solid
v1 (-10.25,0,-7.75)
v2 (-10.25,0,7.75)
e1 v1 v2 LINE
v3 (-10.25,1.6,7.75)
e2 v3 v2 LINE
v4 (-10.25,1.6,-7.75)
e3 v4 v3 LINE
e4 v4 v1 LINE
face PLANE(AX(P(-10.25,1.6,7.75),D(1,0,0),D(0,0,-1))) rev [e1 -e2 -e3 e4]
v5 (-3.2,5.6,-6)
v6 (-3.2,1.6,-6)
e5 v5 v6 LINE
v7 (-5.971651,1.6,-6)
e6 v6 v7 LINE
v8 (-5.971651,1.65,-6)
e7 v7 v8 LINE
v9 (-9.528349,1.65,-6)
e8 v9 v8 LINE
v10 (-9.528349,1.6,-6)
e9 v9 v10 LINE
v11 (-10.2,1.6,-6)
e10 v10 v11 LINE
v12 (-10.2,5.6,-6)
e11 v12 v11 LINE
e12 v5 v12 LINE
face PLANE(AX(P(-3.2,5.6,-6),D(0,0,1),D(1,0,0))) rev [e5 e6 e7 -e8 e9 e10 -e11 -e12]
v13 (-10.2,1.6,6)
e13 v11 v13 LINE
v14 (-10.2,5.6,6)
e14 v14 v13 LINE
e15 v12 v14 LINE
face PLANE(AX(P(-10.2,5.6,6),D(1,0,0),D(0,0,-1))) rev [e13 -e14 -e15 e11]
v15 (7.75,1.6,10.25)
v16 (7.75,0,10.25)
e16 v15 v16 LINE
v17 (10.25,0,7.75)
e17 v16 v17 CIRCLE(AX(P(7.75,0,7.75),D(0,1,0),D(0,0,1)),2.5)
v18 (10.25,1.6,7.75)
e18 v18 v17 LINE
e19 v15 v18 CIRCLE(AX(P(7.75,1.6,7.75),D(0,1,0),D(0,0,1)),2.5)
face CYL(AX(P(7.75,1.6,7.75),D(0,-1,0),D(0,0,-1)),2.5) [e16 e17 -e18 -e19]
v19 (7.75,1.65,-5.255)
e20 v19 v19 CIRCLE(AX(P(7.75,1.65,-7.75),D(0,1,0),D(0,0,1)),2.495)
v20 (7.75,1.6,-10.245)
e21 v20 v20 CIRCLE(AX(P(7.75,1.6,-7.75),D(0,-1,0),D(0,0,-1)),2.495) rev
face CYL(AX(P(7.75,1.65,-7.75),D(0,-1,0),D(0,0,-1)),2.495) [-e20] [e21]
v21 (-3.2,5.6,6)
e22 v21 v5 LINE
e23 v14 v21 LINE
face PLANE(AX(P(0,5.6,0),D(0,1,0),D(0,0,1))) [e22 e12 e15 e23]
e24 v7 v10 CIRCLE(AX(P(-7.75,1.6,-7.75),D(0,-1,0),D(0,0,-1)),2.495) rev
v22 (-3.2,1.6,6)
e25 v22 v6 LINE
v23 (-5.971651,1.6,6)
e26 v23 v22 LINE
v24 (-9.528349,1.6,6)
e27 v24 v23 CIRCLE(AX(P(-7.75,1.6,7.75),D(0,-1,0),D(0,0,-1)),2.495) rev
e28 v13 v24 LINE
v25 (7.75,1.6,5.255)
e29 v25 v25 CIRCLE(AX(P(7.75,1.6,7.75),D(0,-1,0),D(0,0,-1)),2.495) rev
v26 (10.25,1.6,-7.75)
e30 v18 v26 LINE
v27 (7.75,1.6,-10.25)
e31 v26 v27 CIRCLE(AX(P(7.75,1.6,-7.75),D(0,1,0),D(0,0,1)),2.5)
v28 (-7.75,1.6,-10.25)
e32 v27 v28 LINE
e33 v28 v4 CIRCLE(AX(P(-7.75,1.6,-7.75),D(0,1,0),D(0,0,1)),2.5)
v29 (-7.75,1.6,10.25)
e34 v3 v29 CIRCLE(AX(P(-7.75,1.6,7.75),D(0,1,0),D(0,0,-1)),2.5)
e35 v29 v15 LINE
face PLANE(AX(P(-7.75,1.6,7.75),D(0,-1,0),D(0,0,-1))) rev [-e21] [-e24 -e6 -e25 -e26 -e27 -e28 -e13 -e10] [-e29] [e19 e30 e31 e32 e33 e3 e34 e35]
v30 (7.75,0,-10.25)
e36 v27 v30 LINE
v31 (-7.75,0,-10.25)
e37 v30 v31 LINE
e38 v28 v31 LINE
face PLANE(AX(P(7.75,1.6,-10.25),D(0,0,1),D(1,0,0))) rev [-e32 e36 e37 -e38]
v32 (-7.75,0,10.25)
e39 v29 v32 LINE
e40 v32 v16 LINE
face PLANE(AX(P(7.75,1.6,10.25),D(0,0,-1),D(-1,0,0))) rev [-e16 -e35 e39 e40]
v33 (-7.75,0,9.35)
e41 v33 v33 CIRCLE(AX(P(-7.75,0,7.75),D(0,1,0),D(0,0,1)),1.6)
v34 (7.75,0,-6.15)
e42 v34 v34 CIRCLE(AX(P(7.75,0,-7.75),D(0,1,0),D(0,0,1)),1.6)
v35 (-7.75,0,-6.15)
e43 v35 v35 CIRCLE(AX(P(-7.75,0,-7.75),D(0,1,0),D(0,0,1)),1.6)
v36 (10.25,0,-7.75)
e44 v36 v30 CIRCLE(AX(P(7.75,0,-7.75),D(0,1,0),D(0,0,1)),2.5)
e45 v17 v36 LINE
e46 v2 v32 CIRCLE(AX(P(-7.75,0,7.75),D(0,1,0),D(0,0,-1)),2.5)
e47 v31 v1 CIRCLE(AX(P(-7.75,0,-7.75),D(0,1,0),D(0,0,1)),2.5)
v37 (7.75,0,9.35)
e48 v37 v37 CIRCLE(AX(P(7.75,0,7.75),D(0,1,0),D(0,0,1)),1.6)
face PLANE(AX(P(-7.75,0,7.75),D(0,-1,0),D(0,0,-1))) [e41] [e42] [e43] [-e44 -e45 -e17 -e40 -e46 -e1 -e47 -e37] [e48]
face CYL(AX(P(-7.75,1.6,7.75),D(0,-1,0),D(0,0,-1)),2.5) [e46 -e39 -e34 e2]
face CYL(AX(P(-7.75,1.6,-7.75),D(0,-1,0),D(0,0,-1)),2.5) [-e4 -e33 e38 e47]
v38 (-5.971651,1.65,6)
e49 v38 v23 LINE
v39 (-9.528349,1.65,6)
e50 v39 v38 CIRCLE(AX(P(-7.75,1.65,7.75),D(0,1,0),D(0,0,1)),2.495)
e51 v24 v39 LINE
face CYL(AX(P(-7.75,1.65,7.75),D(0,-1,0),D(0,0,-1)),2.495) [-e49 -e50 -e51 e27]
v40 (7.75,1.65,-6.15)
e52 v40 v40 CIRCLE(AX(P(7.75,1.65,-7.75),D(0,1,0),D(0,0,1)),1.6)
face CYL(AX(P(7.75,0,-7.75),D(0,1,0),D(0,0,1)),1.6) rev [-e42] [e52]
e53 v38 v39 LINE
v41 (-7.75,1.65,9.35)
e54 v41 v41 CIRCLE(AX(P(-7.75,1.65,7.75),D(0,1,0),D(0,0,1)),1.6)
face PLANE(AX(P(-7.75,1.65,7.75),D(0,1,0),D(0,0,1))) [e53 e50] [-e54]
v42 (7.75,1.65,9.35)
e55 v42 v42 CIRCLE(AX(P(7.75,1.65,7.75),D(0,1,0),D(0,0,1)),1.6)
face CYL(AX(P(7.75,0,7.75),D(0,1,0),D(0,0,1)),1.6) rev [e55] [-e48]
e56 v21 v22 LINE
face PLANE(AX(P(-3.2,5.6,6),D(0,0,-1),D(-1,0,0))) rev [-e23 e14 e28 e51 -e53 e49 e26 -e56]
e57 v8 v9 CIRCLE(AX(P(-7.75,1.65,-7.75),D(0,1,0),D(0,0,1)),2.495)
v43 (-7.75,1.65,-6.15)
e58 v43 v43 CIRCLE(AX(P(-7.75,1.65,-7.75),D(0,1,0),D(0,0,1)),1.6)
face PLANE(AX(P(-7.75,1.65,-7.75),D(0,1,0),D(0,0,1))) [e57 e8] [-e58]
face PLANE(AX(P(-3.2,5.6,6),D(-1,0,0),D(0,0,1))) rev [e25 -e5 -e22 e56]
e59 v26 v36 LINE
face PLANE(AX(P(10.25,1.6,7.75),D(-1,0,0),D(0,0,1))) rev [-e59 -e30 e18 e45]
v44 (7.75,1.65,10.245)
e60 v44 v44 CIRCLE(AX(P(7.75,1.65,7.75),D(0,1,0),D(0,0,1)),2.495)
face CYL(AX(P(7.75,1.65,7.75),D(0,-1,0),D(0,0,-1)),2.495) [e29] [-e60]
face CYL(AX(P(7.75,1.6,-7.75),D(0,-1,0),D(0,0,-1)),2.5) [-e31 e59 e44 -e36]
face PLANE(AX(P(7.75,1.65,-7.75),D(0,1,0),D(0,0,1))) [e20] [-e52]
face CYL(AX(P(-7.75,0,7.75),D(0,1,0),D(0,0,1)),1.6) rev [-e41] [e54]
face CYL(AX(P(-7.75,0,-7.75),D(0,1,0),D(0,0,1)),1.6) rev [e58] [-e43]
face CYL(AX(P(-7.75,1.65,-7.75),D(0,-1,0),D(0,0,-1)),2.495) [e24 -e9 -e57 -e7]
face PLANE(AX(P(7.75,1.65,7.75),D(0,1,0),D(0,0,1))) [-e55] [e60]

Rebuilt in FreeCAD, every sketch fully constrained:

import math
import FreeCAD as App
import Part
import Sketcher


def add_polygon(sketch, points):
    """Adds a closed chain of lines whose ends are joined by coincident constraints."""
    first, n = sketch.GeometryCount, len(points)
    for a, b in zip(points, points[1:] + points[:1]):
        sketch.addGeometry(Part.LineSegment(App.Vector(*a, 0), App.Vector(*b, 0)), False)
    for i in range(n):
        sketch.addConstraint(Sketcher.Constraint("Coincident", first + i, 2, first + (i + 1) % n, 1))

doc = App.newDocument("Part")
body = doc.addObject("PartDesign::Body", "Body")

sketch1 = doc.addObject("Sketcher::SketchObject", "Sketch")
body.addObject(sketch1)
sketch1.AttachmentSupport = (doc.XZ_Plane, [""])
sketch1.MapMode = "FlatFace"
sketch1.addGeometry([
    Part.LineSegment(App.Vector(-7.75, 10.25, 0), App.Vector(7.75, 10.25, 0)),
    Part.ArcOfCircle(Part.Circle(App.Vector(7.75, 7.75, 0), App.Vector(0, 0, 1), 2.5), math.radians(0), math.radians(90)),
    Part.LineSegment(App.Vector(10.25, 7.75, 0), App.Vector(10.25, -7.75, 0)),
    Part.ArcOfCircle(Part.Circle(App.Vector(7.75, -7.75, 0), App.Vector(0, 0, 1), 2.5), math.radians(-90), math.radians(0)),
    Part.LineSegment(App.Vector(7.75, -10.25, 0), App.Vector(-7.75, -10.25, 0)),
    Part.ArcOfCircle(Part.Circle(App.Vector(-7.75, -7.75, 0), App.Vector(0, 0, 1), 2.5), math.radians(180), math.radians(270)),
    Part.LineSegment(App.Vector(-10.25, -7.75, 0), App.Vector(-10.25, 7.75, 0)),
    Part.ArcOfCircle(Part.Circle(App.Vector(-7.75, 7.75, 0), App.Vector(0, 0, 1), 2.5), math.radians(90), math.radians(180)),
], False)
sketch1.addConstraint([
    Sketcher.Constraint("Tangent", 0, 2, 1, 2),
    Sketcher.Constraint("Tangent", 1, 1, 2, 1),
    Sketcher.Constraint("Tangent", 2, 2, 3, 2),
    Sketcher.Constraint("Tangent", 3, 1, 4, 1),
    Sketcher.Constraint("Tangent", 4, 2, 5, 2),
    Sketcher.Constraint("Tangent", 5, 1, 6, 1),
    Sketcher.Constraint("Tangent", 6, 2, 7, 2),
    Sketcher.Constraint("Tangent", 7, 1, 0, 1),
    Sketcher.Constraint("Horizontal", 0),
    Sketcher.Constraint("Vertical", 2),
    Sketcher.Constraint("Horizontal", 4),
    Sketcher.Constraint("Vertical", 6),
    Sketcher.Constraint("Equal", 1, 3),
    Sketcher.Constraint("Equal", 3, 5),
    Sketcher.Constraint("Equal", 5, 7),
    Sketcher.Constraint("Symmetric", 1, 3, 5, 3, -1, 1),
    Sketcher.Constraint("Equal", 4, 2),
    Sketcher.Constraint("Radius", 1, 2.5),
    Sketcher.Constraint("DistanceX", 0, 1, 0, 2, 15.5),
])
pad1 = doc.addObject("PartDesign::Pad", "Pad")
body.addObject(pad1)
pad1.Profile = sketch1
pad1.Length = 1.6
pad1.Reversed = True

sketch2 = doc.addObject("Sketcher::SketchObject", "Sketch001")
body.addObject(sketch2)
sketch2.AttachmentSupport = (doc.XZ_Plane, [""])
sketch2.MapMode = "FlatFace"
sketch2.AttachmentOffset = App.Placement(App.Vector(0, 0, -1.6), App.Rotation())
sketch2.addGeometry([
    Part.Circle(App.Vector(-7.75, -7.75, 0), App.Vector(0, 0, 1), 2.495),
    Part.Circle(App.Vector(7.75, -7.75, 0), App.Vector(0, 0, 1), 2.495),
    Part.Circle(App.Vector(7.75, 7.75, 0), App.Vector(0, 0, 1), 2.495),
    Part.Circle(App.Vector(-7.75, 7.75, 0), App.Vector(0, 0, 1), 2.495),
], False)
sketch2.addConstraint([
    Sketcher.Constraint("Equal", 0, 1),
    Sketcher.Constraint("Equal", 1, 2),
    Sketcher.Constraint("Equal", 2, 3),
    Sketcher.Constraint("Symmetric", 0, 3, 2, 3, -1, 1),
    Sketcher.Constraint("Symmetric", 1, 3, 3, 3, -1, 1),
    Sketcher.Constraint("Symmetric", 0, 3, 1, 3, -2),
    Sketcher.Constraint("Diameter", 0, 4.99),
    Sketcher.Constraint("DistanceX", 0, 3, 1, 3, 15.5),
    Sketcher.Constraint("DistanceY", 1, 3, 2, 3, 15.5),
])
pad2 = doc.addObject("PartDesign::Pad", "Pad001")
body.addObject(pad2)
pad2.Profile = sketch2
pad2.Length = 0.05
pad2.Reversed = True

sketch3 = doc.addObject("Sketcher::SketchObject", "Sketch002")
body.addObject(sketch3)
sketch3.AttachmentSupport = (doc.XZ_Plane, [""])
sketch3.MapMode = "FlatFace"
sketch3.AttachmentOffset = App.Placement(App.Vector(0, 0, -1.65), App.Rotation())
sketch3.addGeometry([
    Part.Circle(App.Vector(-7.75, -7.75, 0), App.Vector(0, 0, 1), 1.6),
    Part.Circle(App.Vector(7.75, -7.75, 0), App.Vector(0, 0, 1), 1.6),
    Part.Circle(App.Vector(7.75, 7.75, 0), App.Vector(0, 0, 1), 1.6),
    Part.Circle(App.Vector(-7.75, 7.75, 0), App.Vector(0, 0, 1), 1.6),
], False)
sketch3.addConstraint([
    Sketcher.Constraint("Equal", 0, 1),
    Sketcher.Constraint("Equal", 1, 2),
    Sketcher.Constraint("Equal", 2, 3),
    Sketcher.Constraint("Symmetric", 0, 3, 2, 3, -1, 1),
    Sketcher.Constraint("Symmetric", 1, 3, 3, 3, -1, 1),
    Sketcher.Constraint("Symmetric", 0, 3, 1, 3, -2),
    Sketcher.Constraint("Diameter", 0, 3.2),
    Sketcher.Constraint("DistanceX", 0, 3, 1, 3, 15.5),
    Sketcher.Constraint("DistanceY", 1, 3, 2, 3, 15.5),
])
pocket1 = doc.addObject("PartDesign::Pocket", "Pocket")
body.addObject(pocket1)
pocket1.Profile = sketch3
pocket1.Type = "ThroughAll"
pocket1.Reversed = True

sketch4 = doc.addObject("Sketcher::SketchObject", "Sketch003")
body.addObject(sketch4)
sketch4.AttachmentSupport = (doc.XZ_Plane, [""])
sketch4.MapMode = "FlatFace"
sketch4.AttachmentOffset = App.Placement(App.Vector(0, 0, -1.6), App.Rotation())
add_polygon(sketch4, [(-10.2, -6), (-10.2, 6), (-3.2, 6), (-3.2, -6)])
sketch4.addConstraint([
    Sketcher.Constraint("Vertical", 0),
    Sketcher.Constraint("Horizontal", 1),
    Sketcher.Constraint("Vertical", 2),
    Sketcher.Constraint("Horizontal", 3),
    Sketcher.Constraint("DistanceX", 1, 1, 1, 2, 7.0),
    Sketcher.Constraint("DistanceY", 0, 1, 0, 2, 12.0),
    Sketcher.Constraint("DistanceY", -1, 1, 0, 2, 6.0),
    Sketcher.Constraint("DistanceX", 0, 2, -1, 1, 10.2),
])
pad3 = doc.addObject("PartDesign::Pad", "Pad002")
body.addObject(pad3)
pad3.Profile = sketch4
pad3.Length = 4
pad3.Reversed = True

doc.recompute()
